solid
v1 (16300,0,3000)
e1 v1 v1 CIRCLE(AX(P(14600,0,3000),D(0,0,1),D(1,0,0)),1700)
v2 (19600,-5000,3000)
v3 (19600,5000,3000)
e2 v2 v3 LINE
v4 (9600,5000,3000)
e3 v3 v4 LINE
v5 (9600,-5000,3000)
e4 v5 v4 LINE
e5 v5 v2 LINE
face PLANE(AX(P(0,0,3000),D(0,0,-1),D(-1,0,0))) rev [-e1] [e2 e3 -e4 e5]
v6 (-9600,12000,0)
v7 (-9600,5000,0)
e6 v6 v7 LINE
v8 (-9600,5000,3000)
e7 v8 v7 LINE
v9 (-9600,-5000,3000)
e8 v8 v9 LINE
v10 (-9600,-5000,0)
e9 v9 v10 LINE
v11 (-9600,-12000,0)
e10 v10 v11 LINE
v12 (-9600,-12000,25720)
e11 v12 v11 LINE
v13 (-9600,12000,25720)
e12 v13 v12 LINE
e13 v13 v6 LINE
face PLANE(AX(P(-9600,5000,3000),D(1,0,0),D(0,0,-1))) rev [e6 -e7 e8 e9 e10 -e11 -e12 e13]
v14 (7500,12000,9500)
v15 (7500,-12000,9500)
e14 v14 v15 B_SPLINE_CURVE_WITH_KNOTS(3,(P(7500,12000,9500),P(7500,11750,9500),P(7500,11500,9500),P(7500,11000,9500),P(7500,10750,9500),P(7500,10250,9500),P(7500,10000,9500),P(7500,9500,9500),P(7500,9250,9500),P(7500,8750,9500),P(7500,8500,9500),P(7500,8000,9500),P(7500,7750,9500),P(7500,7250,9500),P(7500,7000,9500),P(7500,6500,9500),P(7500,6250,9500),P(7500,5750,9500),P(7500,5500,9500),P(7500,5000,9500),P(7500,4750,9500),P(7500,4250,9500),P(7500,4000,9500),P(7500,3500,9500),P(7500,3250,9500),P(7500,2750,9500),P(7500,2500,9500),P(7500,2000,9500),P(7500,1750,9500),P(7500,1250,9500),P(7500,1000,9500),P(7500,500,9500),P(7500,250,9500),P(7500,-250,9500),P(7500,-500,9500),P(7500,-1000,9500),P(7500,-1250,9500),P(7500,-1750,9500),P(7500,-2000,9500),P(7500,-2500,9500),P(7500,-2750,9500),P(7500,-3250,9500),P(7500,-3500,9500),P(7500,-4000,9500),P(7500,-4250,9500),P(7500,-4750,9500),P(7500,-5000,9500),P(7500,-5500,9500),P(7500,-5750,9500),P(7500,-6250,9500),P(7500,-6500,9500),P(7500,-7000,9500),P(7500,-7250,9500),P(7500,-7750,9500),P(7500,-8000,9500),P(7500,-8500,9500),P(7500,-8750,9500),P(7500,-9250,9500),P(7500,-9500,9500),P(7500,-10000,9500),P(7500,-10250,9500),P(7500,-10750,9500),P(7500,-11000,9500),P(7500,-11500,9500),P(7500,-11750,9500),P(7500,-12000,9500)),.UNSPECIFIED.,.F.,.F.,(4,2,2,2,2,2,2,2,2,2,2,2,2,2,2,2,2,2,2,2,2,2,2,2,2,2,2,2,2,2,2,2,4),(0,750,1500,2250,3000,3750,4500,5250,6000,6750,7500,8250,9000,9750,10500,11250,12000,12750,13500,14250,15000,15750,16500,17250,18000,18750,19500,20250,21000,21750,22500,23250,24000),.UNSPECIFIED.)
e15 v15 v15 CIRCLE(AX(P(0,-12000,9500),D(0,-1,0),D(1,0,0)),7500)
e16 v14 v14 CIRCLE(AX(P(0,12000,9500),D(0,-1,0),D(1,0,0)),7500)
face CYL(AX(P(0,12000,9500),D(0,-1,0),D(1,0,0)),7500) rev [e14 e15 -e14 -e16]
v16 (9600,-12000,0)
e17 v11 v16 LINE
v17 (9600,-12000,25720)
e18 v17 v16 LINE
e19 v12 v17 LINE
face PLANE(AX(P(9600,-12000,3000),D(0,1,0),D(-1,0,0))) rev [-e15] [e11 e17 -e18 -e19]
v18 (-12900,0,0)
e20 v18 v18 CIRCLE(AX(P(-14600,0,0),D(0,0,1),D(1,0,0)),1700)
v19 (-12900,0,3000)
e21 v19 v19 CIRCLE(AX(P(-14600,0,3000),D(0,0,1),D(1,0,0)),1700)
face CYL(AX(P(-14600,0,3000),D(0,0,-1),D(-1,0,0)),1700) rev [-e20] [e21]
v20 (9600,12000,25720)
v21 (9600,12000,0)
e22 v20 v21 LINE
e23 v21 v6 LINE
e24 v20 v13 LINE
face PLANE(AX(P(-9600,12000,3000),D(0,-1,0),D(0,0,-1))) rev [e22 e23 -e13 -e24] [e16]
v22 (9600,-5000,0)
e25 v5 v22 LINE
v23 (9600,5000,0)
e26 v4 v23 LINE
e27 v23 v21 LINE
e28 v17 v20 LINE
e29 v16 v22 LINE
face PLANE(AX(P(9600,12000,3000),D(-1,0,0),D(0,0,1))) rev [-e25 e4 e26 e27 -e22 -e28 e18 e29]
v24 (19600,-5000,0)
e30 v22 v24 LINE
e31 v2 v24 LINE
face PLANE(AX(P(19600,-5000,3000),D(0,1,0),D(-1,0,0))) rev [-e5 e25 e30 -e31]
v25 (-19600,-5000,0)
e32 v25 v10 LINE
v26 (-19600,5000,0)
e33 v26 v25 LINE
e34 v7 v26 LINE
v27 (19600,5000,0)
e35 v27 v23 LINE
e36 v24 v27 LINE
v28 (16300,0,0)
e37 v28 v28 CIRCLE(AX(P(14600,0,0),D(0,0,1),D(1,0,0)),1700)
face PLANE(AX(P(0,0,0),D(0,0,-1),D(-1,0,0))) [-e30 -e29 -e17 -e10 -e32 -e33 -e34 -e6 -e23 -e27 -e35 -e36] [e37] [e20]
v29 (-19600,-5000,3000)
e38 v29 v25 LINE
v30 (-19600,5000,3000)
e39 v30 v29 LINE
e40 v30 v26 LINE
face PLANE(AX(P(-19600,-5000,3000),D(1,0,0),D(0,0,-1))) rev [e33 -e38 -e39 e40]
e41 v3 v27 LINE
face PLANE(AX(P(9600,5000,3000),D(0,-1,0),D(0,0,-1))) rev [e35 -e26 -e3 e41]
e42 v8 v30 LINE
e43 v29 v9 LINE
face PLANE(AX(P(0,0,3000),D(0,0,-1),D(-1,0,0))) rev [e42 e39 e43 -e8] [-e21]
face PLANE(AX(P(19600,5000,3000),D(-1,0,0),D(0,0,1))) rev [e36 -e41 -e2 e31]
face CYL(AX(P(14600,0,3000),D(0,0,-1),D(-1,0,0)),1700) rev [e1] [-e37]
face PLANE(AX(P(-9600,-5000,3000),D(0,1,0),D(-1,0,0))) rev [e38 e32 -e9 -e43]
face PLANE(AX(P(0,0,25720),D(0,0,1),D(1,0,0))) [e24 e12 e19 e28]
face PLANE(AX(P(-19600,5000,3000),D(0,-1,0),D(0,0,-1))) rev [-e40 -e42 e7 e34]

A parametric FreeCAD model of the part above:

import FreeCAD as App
import Part
import Sketcher
from FreeCAD import Vector


def add_polygon(sketch, points):
    """Adds a closed chain of lines whose ends are joined by coincident constraints."""
    first, n = sketch.GeometryCount, len(points)
    for a, b in zip(points, points[1:] + points[:1]):
        sketch.addGeometry(Part.LineSegment(App.Vector(*a, 0), App.Vector(*b, 0)), False)
    for i in range(n):
        sketch.addConstraint(Sketcher.Constraint("Coincident", first + i, 2, first + (i + 1) % n, 1))

doc = App.newDocument("Part")
body = doc.addObject("PartDesign::Body", "Body")

sketch1 = body.newObject("Sketcher::SketchObject", "Sketch")
sketch1.AttachmentSupport = (doc.getObject("XY_Plane"), [""])
sketch1.MapMode = "FlatFace"
add_polygon(sketch1, [(-9600, 5000), (-19600, 5000), (-19600, -5000), (-9600, -5000), (-9600, -12000), (9600, -12000), (9600, -5000), (19600, -5000), (19600, 5000), (9600, 5000), (9600, 12000), (-9600, 12000)])
sketch1.addGeometry(Part.Circle(Vector(14600, 0, 0), Vector(0, 0, 1), 1700), False)
sketch1.addGeometry(Part.Circle(Vector(-14600, 0, 0), Vector(0, 0, 1), 1700), False)
sketch1.addConstraint([
    Sketcher.Constraint("Horizontal", 0),
    Sketcher.Constraint("Vertical", 1),
    Sketcher.Constraint("Horizontal", 2),
    Sketcher.Constraint("Vertical", 3),
    Sketcher.Constraint("Horizontal", 4),
    Sketcher.Constraint("Vertical", 5),
    Sketcher.Constraint("Horizontal", 6),
    Sketcher.Constraint("Vertical", 7),
    Sketcher.Constraint("Horizontal", 8),
    Sketcher.Constraint("Vertical", 9),
    Sketcher.Constraint("Horizontal", 10),
    Sketcher.Constraint("Vertical", 11),
    Sketcher.Constraint("Equal", 12, 13),
    Sketcher.Constraint("Symmetric", 12, 3, 13, 3, -1, 1),
    Sketcher.Constraint("Symmetric", 0, 2, 6, 2, -1, 1),
    Sketcher.Constraint("Symmetric", 2, 2, 8, 2, -1, 1),
    Sketcher.Constraint("Symmetric", 4, 2, 10, 2, -1, 1),
    Sketcher.Constraint("Symmetric", 2, 2, 5, 2, -2),
    Sketcher.Constraint("PointOnObject", 12, 3, -1),
    Sketcher.Constraint("Equal", 8, 1),
    Sketcher.Constraint("Diameter", 12, 3400.0),
    Sketcher.Constraint("DistanceX", 0, 2, 0, 1, 10000.0),
    Sketcher.Constraint("DistanceX", 4, 1, 4, 2, 19200.0),
    Sketcher.Constraint("DistanceY", 3, 2, 3, 1, 7000.0),
    Sketcher.Constraint("DistanceX", -1, 1, 12, 3, 14600.0),
])
pad1 = body.newObject("PartDesign::Pad", "Pad")
pad1.Profile = sketch1
pad1.Length = 3000

sketch2 = body.newObject("Sketcher::SketchObject", "Sketch001")
sketch2.AttachmentSupport = (doc.getObject("XY_Plane"), [""])
sketch2.MapMode = "FlatFace"
sketch2.AttachmentOffset = App.Placement(Vector(0, 0, 3000), App.Rotation())
add_polygon(sketch2, [(-9600, 12000), (-9600, -12000), (9600, -12000), (9600, 12000)])
sketch2.addConstraint([
    Sketcher.Constraint("Vertical", 0),
    Sketcher.Constraint("Horizontal", 1),
    Sketcher.Constraint("Vertical", 2),
    Sketcher.Constraint("Horizontal", 3),
    Sketcher.Constraint("Symmetric", 0, 2, 2, 2, -1, 1),
    Sketcher.Constraint("DistanceX", 1, 1, 1, 2, 19200.0),
    Sketcher.Constraint("DistanceY", 0, 2, 0, 1, 24000.0),
])
pad2 = body.newObject("PartDesign::Pad", "Pad001")
pad2.Profile = sketch2
pad2.Length = 22720

sketch3 = body.newObject("Sketcher::SketchObject", "Sketch002")
sketch3.AttachmentSupport = (doc.getObject("XZ_Plane"), [""])
sketch3.MapMode = "FlatFace"
sketch3.AttachmentOffset = App.Placement(Vector(0, 0, 12000), App.Rotation())
sketch3.addGeometry(Part.Circle(Vector(0, 9500, 0), Vector(0, 0, 1), 7500), False)
sketch3.addConstraint([
    Sketcher.Constraint("PointOnObject", 0, 3, -2),
    Sketcher.Constraint("Diameter", 0, 15000.0),
    Sketcher.Constraint("DistanceY", -1, 1, 0, 3, 9500.0),
])
pocket1 = body.newObject("PartDesign::Pocket", "Pocket")
pocket1.Profile = sketch3
pocket1.Type = "ThroughAll"

doc.recompute()
